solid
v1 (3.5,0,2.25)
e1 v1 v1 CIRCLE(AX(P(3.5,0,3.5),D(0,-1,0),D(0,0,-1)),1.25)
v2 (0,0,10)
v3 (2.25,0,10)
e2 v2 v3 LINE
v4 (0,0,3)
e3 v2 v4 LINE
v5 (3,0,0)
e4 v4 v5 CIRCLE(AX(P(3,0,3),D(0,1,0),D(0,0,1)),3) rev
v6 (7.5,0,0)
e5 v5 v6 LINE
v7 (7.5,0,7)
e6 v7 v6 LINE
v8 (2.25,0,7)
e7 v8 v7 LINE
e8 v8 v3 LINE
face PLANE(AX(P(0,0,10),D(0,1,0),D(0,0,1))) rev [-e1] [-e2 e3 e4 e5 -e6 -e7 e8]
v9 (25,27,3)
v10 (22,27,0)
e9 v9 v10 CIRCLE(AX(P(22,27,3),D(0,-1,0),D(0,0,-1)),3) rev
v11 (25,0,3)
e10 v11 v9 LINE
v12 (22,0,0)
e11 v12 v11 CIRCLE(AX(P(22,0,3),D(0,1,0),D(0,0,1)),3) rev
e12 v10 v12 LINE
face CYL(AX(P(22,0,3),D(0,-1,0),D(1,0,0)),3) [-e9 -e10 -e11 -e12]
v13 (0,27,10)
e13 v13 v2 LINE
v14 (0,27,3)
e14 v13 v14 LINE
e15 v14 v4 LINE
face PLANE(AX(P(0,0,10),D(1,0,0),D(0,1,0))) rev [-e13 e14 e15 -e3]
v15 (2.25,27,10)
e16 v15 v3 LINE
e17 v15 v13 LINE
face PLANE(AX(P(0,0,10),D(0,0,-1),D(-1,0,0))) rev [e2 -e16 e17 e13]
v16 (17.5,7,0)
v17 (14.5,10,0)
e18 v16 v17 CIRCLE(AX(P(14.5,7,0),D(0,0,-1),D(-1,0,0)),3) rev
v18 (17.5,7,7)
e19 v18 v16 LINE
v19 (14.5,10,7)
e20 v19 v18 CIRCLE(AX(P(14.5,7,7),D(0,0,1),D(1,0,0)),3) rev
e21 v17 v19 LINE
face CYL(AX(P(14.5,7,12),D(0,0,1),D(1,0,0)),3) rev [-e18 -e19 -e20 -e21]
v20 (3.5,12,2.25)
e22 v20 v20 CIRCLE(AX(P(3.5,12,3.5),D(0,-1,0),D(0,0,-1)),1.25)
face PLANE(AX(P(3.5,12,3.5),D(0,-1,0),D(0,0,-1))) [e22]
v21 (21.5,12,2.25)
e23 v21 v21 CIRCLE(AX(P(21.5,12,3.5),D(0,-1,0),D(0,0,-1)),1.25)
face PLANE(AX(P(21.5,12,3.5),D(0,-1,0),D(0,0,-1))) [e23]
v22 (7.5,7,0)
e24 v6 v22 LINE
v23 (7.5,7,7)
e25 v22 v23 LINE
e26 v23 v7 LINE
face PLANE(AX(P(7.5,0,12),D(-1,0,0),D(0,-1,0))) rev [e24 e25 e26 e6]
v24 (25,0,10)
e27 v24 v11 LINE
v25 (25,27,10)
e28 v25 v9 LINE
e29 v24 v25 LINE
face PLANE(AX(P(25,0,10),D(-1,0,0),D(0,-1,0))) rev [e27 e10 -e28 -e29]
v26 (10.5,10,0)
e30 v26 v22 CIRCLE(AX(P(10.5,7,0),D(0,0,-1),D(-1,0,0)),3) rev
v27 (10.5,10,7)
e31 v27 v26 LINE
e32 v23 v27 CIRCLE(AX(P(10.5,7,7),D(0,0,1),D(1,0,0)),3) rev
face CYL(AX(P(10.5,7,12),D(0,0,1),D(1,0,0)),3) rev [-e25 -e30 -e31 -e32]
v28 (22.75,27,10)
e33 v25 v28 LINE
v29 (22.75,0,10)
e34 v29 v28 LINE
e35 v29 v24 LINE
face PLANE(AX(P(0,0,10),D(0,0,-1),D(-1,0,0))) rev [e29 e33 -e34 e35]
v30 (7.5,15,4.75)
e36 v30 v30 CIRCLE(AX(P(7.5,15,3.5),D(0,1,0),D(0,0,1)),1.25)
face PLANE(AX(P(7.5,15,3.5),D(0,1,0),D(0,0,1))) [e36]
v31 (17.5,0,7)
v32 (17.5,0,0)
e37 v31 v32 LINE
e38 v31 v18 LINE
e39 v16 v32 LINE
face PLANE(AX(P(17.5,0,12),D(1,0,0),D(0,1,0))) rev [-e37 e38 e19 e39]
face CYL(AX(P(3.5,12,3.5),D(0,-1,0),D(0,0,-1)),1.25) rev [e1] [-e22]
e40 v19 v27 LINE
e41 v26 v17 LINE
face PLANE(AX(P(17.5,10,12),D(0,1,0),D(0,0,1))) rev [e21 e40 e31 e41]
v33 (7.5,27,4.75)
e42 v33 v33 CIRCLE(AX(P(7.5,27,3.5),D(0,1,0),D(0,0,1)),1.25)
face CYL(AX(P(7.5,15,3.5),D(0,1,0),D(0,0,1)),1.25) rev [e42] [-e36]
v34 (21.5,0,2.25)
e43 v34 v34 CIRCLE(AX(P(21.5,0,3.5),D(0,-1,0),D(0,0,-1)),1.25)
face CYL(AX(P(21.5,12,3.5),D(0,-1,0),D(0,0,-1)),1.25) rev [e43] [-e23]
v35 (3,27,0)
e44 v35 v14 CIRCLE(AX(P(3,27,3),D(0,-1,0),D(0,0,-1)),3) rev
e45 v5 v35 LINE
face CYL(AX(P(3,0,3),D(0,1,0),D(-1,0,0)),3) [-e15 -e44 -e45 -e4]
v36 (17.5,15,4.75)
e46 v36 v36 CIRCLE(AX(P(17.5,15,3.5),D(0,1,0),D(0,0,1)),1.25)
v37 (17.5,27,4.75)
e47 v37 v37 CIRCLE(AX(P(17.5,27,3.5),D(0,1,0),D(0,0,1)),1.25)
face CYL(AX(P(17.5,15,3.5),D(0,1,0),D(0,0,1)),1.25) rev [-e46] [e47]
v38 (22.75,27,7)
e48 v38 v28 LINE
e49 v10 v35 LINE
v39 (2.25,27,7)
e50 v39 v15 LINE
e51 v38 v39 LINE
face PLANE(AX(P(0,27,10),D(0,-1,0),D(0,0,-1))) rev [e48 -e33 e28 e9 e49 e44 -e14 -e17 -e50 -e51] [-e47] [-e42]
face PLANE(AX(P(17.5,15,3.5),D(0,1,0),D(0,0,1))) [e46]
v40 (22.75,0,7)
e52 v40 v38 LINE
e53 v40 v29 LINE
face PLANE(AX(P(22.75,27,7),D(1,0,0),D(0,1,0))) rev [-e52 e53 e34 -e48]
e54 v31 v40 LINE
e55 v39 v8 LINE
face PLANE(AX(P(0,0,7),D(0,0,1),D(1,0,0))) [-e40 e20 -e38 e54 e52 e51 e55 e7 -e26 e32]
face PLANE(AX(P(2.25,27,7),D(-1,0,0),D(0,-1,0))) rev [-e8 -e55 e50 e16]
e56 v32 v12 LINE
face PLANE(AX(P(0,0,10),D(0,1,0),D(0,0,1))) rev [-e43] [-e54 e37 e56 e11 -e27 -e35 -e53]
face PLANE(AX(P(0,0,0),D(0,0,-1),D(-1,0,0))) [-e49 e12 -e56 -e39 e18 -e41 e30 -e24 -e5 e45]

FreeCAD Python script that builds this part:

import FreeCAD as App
import Part
import Sketcher


def edges_at(feature, points):
    """Names of the edges that pass closest to the given points."""
    edges = feature.Shape.Edges
    near = lambda p: min(range(len(edges)), key=lambda i: edges[i].distToShape(Part.Vertex(*p))[0])
    return sorted({f"Edge{near(p) + 1}" for p in points})

doc = App.newDocument("Part")
params = doc.addObject("Spreadsheet::Sheet", "Params")
for row, (alias, value) in enumerate([
    ("sketch1_width", "25 mm"),
    ("sketch1_height", "27 mm"),
    ("pad1_length", "10 mm"),
    ("sketch2_height", "27 mm"),
    ("sketch2_width", "20.5 mm"),
    ("pocket1_length", "3 mm"),
    ("sketch3_diameter", "2.5 mm"),
    ("pocket2_length", "12 mm"),
    ("sketch4_diameter", "2.5 mm"),
    ("pocket3_length", "12 mm"),
    ("sketch5_width", "10 mm"),
    ("pocket4_length", "12 mm"),
    ("fillet_radius", "3 mm"),
], start=1):
    params.set(f"A{row}", alias)
    params.set(f"B{row}", "=" + value)
    params.setAlias(f"B{row}", alias)

body = doc.addObject("PartDesign::Body", "Body")

# Sketch on XY plane
sketch1 = body.newObject("Sketcher::SketchObject", "Sketch")
sketch1.AttachmentSupport = (doc.getObject("XY_Plane"), [""])
sketch1.MapMode = "FlatFace"
sketch1.addGeometry([
    Part.LineSegment(App.Vector(0, 27, 0), App.Vector(0, 0, 0)),
    Part.LineSegment(App.Vector(0, 0, 0), App.Vector(25, 0, 0)),
    Part.LineSegment(App.Vector(25, 0, 0), App.Vector(25, 27, 0)),
    Part.LineSegment(App.Vector(25, 27, 0), App.Vector(0, 27, 0)),
], False)
sketch1.addConstraint([
    Sketcher.Constraint("Coincident", 0, 2, 1, 1),
    Sketcher.Constraint("Coincident", 1, 2, 2, 1),
    Sketcher.Constraint("Coincident", 2, 2, 3, 1),
    Sketcher.Constraint("Coincident", 3, 2, 0, 1),
    Sketcher.Constraint("Vertical", 0),
    Sketcher.Constraint("Horizontal", 1),
    Sketcher.Constraint("Vertical", 2),
    Sketcher.Constraint("Horizontal", 3),
    Sketcher.Constraint("Coincident", 0, 2, -1, 1),
    Sketcher.Constraint("DistanceX", 1, 1, 1, 2, 25.0),
    Sketcher.Constraint("DistanceY", 0, 2, 0, 1, 27.0),
])
sketch1.setExpression("Constraints[9]", "Params.sketch1_width")
sketch1.setExpression("Constraints[10]", "Params.sketch1_height")
pad1 = body.newObject("PartDesign::Pad", "Pad")
pad1.Profile = sketch1
pad1.setExpression("Length", "Params.pad1_length")

# Sketch on XY plane
sketch2 = body.newObject("Sketcher::SketchObject", "Sketch001")
sketch2.AttachmentSupport = (doc.getObject("XY_Plane"), [""])
sketch2.MapMode = "FlatFace"
sketch2.AttachmentOffset = App.Placement(App.Vector(0, 0, 10), App.Rotation())
sketch2.addGeometry([
    Part.LineSegment(App.Vector(2.25, 27, 0), App.Vector(2.25, 0, 0)),
    Part.LineSegment(App.Vector(2.25, 0, 0), App.Vector(22.75, 0, 0)),
    Part.LineSegment(App.Vector(22.75, 0, 0), App.Vector(22.75, 27, 0)),
    Part.LineSegment(App.Vector(22.75, 27, 0), App.Vector(2.25, 27, 0)),
], False)
sketch2.addConstraint([
    Sketcher.Constraint("Coincident", 0, 2, 1, 1),
    Sketcher.Constraint("Coincident", 1, 2, 2, 1),
    Sketcher.Constraint("Coincident", 2, 2, 3, 1),
    Sketcher.Constraint("Coincident", 3, 2, 0, 1),
    Sketcher.Constraint("Vertical", 0),
    Sketcher.Constraint("Horizontal", 1),
    Sketcher.Constraint("Vertical", 2),
    Sketcher.Constraint("Horizontal", 3),
    Sketcher.Constraint("PointOnObject", 0, 2, -1),
    Sketcher.Constraint("DistanceY", 0, 2, 0, 1, 27.0),
    Sketcher.Constraint("DistanceX", 1, 1, 1, 2, 20.5),
    Sketcher.Constraint("DistanceX", -1, 1, 0, 2, 2.25),
])
sketch2.setExpression("Constraints[9]", "Params.sketch2_height")
sketch2.setExpression("Constraints[10]", "Params.sketch2_width")
pocket1 = body.newObject("PartDesign::Pocket", "Pocket")
pocket1.Profile = sketch2
pocket1.setExpression("Length", "Params.pocket1_length")

# Sketch on XZ plane
sketch3 = body.newObject("Sketcher::SketchObject", "Sketch002")
sketch3.AttachmentSupport = (doc.getObject("XZ_Plane"), [""])
sketch3.MapMode = "FlatFace"
sketch3.AttachmentOffset = App.Placement(App.Vector(0, 0, -27), App.Rotation())
sketch3.addGeometry([
    Part.Circle(App.Vector(7.5, 3.5, 0), App.Vector(0, 0, 1), 1.25),
    Part.Circle(App.Vector(17.5, 3.5, 0), App.Vector(0, 0, 1), 1.25),
], False)
sketch3.addConstraint([
    Sketcher.Constraint("Equal", 0, 1),
    Sketcher.Constraint("Horizontal", 0, 3, 1, 3),
    Sketcher.Constraint("Diameter", 0, 2.5),
    Sketcher.Constraint("DistanceX", 0, 3, 1, 3, 10.0),
    Sketcher.Constraint("DistanceX", -1, 1, 0, 3, 7.5),
    Sketcher.Constraint("DistanceY", -1, 1, 0, 3, 3.5),
])
sketch3.setExpression("Constraints[2]", "Params.sketch3_diameter")
pocket2 = body.newObject("PartDesign::Pocket", "Pocket001")
pocket2.Profile = sketch3
pocket2.setExpression("Length", "Params.pocket2_length")
pocket2.Reversed = True

# Sketch on XZ plane
sketch4 = body.newObject("Sketcher::SketchObject", "Sketch003")
sketch4.AttachmentSupport = (doc.getObject("XZ_Plane"), [""])
sketch4.MapMode = "FlatFace"
sketch4.addGeometry([
    Part.Circle(App.Vector(3.5, 3.5, 0), App.Vector(0, 0, 1), 1.25),
    Part.Circle(App.Vector(21.5, 3.5, 0), App.Vector(0, 0, 1), 1.25),
], False)
sketch4.addConstraint([
    Sketcher.Constraint("Equal", 0, 1),
    Sketcher.Constraint("Horizontal", 0, 3, 1, 3),
    Sketcher.Constraint("Diameter", 0, 2.5),
    Sketcher.Constraint("DistanceX", 0, 3, 1, 3, 18.0),
    Sketcher.Constraint("DistanceX", -1, 1, 0, 3, 3.5),
    Sketcher.Constraint("DistanceY", -1, 1, 0, 3, 3.5),
])
sketch4.setExpression("Constraints[2]", "Params.sketch4_diameter")
pocket3 = body.newObject("PartDesign::Pocket", "Pocket002")
pocket3.Profile = sketch4
pocket3.setExpression("Length", "Params.pocket3_length")

# Sketch on XY plane
sketch5 = body.newObject("Sketcher::SketchObject", "Sketch004")
sketch5.AttachmentSupport = (doc.getObject("XY_Plane"), [""])
sketch5.MapMode = "FlatFace"
sketch5.addGeometry([
    Part.LineSegment(App.Vector(17.5, 10, 0), App.Vector(17.5, 0, 0)),
    Part.LineSegment(App.Vector(17.5, 0, 0), App.Vector(7.5, 0, 0)),
    Part.LineSegment(App.Vector(7.5, 0, 0), App.Vector(7.5, 10, 0)),
    Part.LineSegment(App.Vector(7.5, 10, 0), App.Vector(17.5, 10, 0)),
], False)
sketch5.addConstraint([
    Sketcher.Constraint("Coincident", 0, 2, 1, 1),
    Sketcher.Constraint("Coincident", 1, 2, 2, 1),
    Sketcher.Constraint("Coincident", 2, 2, 3, 1),
    Sketcher.Constraint("Coincident", 3, 2, 0, 1),
    Sketcher.Constraint("Vertical", 0),
    Sketcher.Constraint("Horizontal", 1),
    Sketcher.Constraint("Vertical", 2),
    Sketcher.Constraint("Horizontal", 3),
    Sketcher.Constraint("PointOnObject", 0, 2, -1),
    Sketcher.Constraint("Equal", 3, 0),
    Sketcher.Constraint("DistanceX", 1, 2, 1, 1, 10.0),
    Sketcher.Constraint("DistanceX", -1, 1, 0, 2, 17.5),
])
sketch5.setExpression("Constraints[10]", "Params.sketch5_width")
pocket4 = body.newObject("PartDesign::Pocket", "Pocket003")
pocket4.Profile = sketch5
pocket4.setExpression("Length", "Params.pocket4_length")
pocket4.Reversed = True
doc.recompute()

fillet = body.newObject("PartDesign::Fillet", "Fillet")
fillet.Base = (pocket4, edges_at(pocket4, [
    (25, 13.5, 0),
    (17.5, 10, 3.5),
    (7.5, 10, 3.5),
    (0, 13.5, 0),
]))
fillet.setExpression("Radius", "Params.fillet_radius")

doc.recompute()
